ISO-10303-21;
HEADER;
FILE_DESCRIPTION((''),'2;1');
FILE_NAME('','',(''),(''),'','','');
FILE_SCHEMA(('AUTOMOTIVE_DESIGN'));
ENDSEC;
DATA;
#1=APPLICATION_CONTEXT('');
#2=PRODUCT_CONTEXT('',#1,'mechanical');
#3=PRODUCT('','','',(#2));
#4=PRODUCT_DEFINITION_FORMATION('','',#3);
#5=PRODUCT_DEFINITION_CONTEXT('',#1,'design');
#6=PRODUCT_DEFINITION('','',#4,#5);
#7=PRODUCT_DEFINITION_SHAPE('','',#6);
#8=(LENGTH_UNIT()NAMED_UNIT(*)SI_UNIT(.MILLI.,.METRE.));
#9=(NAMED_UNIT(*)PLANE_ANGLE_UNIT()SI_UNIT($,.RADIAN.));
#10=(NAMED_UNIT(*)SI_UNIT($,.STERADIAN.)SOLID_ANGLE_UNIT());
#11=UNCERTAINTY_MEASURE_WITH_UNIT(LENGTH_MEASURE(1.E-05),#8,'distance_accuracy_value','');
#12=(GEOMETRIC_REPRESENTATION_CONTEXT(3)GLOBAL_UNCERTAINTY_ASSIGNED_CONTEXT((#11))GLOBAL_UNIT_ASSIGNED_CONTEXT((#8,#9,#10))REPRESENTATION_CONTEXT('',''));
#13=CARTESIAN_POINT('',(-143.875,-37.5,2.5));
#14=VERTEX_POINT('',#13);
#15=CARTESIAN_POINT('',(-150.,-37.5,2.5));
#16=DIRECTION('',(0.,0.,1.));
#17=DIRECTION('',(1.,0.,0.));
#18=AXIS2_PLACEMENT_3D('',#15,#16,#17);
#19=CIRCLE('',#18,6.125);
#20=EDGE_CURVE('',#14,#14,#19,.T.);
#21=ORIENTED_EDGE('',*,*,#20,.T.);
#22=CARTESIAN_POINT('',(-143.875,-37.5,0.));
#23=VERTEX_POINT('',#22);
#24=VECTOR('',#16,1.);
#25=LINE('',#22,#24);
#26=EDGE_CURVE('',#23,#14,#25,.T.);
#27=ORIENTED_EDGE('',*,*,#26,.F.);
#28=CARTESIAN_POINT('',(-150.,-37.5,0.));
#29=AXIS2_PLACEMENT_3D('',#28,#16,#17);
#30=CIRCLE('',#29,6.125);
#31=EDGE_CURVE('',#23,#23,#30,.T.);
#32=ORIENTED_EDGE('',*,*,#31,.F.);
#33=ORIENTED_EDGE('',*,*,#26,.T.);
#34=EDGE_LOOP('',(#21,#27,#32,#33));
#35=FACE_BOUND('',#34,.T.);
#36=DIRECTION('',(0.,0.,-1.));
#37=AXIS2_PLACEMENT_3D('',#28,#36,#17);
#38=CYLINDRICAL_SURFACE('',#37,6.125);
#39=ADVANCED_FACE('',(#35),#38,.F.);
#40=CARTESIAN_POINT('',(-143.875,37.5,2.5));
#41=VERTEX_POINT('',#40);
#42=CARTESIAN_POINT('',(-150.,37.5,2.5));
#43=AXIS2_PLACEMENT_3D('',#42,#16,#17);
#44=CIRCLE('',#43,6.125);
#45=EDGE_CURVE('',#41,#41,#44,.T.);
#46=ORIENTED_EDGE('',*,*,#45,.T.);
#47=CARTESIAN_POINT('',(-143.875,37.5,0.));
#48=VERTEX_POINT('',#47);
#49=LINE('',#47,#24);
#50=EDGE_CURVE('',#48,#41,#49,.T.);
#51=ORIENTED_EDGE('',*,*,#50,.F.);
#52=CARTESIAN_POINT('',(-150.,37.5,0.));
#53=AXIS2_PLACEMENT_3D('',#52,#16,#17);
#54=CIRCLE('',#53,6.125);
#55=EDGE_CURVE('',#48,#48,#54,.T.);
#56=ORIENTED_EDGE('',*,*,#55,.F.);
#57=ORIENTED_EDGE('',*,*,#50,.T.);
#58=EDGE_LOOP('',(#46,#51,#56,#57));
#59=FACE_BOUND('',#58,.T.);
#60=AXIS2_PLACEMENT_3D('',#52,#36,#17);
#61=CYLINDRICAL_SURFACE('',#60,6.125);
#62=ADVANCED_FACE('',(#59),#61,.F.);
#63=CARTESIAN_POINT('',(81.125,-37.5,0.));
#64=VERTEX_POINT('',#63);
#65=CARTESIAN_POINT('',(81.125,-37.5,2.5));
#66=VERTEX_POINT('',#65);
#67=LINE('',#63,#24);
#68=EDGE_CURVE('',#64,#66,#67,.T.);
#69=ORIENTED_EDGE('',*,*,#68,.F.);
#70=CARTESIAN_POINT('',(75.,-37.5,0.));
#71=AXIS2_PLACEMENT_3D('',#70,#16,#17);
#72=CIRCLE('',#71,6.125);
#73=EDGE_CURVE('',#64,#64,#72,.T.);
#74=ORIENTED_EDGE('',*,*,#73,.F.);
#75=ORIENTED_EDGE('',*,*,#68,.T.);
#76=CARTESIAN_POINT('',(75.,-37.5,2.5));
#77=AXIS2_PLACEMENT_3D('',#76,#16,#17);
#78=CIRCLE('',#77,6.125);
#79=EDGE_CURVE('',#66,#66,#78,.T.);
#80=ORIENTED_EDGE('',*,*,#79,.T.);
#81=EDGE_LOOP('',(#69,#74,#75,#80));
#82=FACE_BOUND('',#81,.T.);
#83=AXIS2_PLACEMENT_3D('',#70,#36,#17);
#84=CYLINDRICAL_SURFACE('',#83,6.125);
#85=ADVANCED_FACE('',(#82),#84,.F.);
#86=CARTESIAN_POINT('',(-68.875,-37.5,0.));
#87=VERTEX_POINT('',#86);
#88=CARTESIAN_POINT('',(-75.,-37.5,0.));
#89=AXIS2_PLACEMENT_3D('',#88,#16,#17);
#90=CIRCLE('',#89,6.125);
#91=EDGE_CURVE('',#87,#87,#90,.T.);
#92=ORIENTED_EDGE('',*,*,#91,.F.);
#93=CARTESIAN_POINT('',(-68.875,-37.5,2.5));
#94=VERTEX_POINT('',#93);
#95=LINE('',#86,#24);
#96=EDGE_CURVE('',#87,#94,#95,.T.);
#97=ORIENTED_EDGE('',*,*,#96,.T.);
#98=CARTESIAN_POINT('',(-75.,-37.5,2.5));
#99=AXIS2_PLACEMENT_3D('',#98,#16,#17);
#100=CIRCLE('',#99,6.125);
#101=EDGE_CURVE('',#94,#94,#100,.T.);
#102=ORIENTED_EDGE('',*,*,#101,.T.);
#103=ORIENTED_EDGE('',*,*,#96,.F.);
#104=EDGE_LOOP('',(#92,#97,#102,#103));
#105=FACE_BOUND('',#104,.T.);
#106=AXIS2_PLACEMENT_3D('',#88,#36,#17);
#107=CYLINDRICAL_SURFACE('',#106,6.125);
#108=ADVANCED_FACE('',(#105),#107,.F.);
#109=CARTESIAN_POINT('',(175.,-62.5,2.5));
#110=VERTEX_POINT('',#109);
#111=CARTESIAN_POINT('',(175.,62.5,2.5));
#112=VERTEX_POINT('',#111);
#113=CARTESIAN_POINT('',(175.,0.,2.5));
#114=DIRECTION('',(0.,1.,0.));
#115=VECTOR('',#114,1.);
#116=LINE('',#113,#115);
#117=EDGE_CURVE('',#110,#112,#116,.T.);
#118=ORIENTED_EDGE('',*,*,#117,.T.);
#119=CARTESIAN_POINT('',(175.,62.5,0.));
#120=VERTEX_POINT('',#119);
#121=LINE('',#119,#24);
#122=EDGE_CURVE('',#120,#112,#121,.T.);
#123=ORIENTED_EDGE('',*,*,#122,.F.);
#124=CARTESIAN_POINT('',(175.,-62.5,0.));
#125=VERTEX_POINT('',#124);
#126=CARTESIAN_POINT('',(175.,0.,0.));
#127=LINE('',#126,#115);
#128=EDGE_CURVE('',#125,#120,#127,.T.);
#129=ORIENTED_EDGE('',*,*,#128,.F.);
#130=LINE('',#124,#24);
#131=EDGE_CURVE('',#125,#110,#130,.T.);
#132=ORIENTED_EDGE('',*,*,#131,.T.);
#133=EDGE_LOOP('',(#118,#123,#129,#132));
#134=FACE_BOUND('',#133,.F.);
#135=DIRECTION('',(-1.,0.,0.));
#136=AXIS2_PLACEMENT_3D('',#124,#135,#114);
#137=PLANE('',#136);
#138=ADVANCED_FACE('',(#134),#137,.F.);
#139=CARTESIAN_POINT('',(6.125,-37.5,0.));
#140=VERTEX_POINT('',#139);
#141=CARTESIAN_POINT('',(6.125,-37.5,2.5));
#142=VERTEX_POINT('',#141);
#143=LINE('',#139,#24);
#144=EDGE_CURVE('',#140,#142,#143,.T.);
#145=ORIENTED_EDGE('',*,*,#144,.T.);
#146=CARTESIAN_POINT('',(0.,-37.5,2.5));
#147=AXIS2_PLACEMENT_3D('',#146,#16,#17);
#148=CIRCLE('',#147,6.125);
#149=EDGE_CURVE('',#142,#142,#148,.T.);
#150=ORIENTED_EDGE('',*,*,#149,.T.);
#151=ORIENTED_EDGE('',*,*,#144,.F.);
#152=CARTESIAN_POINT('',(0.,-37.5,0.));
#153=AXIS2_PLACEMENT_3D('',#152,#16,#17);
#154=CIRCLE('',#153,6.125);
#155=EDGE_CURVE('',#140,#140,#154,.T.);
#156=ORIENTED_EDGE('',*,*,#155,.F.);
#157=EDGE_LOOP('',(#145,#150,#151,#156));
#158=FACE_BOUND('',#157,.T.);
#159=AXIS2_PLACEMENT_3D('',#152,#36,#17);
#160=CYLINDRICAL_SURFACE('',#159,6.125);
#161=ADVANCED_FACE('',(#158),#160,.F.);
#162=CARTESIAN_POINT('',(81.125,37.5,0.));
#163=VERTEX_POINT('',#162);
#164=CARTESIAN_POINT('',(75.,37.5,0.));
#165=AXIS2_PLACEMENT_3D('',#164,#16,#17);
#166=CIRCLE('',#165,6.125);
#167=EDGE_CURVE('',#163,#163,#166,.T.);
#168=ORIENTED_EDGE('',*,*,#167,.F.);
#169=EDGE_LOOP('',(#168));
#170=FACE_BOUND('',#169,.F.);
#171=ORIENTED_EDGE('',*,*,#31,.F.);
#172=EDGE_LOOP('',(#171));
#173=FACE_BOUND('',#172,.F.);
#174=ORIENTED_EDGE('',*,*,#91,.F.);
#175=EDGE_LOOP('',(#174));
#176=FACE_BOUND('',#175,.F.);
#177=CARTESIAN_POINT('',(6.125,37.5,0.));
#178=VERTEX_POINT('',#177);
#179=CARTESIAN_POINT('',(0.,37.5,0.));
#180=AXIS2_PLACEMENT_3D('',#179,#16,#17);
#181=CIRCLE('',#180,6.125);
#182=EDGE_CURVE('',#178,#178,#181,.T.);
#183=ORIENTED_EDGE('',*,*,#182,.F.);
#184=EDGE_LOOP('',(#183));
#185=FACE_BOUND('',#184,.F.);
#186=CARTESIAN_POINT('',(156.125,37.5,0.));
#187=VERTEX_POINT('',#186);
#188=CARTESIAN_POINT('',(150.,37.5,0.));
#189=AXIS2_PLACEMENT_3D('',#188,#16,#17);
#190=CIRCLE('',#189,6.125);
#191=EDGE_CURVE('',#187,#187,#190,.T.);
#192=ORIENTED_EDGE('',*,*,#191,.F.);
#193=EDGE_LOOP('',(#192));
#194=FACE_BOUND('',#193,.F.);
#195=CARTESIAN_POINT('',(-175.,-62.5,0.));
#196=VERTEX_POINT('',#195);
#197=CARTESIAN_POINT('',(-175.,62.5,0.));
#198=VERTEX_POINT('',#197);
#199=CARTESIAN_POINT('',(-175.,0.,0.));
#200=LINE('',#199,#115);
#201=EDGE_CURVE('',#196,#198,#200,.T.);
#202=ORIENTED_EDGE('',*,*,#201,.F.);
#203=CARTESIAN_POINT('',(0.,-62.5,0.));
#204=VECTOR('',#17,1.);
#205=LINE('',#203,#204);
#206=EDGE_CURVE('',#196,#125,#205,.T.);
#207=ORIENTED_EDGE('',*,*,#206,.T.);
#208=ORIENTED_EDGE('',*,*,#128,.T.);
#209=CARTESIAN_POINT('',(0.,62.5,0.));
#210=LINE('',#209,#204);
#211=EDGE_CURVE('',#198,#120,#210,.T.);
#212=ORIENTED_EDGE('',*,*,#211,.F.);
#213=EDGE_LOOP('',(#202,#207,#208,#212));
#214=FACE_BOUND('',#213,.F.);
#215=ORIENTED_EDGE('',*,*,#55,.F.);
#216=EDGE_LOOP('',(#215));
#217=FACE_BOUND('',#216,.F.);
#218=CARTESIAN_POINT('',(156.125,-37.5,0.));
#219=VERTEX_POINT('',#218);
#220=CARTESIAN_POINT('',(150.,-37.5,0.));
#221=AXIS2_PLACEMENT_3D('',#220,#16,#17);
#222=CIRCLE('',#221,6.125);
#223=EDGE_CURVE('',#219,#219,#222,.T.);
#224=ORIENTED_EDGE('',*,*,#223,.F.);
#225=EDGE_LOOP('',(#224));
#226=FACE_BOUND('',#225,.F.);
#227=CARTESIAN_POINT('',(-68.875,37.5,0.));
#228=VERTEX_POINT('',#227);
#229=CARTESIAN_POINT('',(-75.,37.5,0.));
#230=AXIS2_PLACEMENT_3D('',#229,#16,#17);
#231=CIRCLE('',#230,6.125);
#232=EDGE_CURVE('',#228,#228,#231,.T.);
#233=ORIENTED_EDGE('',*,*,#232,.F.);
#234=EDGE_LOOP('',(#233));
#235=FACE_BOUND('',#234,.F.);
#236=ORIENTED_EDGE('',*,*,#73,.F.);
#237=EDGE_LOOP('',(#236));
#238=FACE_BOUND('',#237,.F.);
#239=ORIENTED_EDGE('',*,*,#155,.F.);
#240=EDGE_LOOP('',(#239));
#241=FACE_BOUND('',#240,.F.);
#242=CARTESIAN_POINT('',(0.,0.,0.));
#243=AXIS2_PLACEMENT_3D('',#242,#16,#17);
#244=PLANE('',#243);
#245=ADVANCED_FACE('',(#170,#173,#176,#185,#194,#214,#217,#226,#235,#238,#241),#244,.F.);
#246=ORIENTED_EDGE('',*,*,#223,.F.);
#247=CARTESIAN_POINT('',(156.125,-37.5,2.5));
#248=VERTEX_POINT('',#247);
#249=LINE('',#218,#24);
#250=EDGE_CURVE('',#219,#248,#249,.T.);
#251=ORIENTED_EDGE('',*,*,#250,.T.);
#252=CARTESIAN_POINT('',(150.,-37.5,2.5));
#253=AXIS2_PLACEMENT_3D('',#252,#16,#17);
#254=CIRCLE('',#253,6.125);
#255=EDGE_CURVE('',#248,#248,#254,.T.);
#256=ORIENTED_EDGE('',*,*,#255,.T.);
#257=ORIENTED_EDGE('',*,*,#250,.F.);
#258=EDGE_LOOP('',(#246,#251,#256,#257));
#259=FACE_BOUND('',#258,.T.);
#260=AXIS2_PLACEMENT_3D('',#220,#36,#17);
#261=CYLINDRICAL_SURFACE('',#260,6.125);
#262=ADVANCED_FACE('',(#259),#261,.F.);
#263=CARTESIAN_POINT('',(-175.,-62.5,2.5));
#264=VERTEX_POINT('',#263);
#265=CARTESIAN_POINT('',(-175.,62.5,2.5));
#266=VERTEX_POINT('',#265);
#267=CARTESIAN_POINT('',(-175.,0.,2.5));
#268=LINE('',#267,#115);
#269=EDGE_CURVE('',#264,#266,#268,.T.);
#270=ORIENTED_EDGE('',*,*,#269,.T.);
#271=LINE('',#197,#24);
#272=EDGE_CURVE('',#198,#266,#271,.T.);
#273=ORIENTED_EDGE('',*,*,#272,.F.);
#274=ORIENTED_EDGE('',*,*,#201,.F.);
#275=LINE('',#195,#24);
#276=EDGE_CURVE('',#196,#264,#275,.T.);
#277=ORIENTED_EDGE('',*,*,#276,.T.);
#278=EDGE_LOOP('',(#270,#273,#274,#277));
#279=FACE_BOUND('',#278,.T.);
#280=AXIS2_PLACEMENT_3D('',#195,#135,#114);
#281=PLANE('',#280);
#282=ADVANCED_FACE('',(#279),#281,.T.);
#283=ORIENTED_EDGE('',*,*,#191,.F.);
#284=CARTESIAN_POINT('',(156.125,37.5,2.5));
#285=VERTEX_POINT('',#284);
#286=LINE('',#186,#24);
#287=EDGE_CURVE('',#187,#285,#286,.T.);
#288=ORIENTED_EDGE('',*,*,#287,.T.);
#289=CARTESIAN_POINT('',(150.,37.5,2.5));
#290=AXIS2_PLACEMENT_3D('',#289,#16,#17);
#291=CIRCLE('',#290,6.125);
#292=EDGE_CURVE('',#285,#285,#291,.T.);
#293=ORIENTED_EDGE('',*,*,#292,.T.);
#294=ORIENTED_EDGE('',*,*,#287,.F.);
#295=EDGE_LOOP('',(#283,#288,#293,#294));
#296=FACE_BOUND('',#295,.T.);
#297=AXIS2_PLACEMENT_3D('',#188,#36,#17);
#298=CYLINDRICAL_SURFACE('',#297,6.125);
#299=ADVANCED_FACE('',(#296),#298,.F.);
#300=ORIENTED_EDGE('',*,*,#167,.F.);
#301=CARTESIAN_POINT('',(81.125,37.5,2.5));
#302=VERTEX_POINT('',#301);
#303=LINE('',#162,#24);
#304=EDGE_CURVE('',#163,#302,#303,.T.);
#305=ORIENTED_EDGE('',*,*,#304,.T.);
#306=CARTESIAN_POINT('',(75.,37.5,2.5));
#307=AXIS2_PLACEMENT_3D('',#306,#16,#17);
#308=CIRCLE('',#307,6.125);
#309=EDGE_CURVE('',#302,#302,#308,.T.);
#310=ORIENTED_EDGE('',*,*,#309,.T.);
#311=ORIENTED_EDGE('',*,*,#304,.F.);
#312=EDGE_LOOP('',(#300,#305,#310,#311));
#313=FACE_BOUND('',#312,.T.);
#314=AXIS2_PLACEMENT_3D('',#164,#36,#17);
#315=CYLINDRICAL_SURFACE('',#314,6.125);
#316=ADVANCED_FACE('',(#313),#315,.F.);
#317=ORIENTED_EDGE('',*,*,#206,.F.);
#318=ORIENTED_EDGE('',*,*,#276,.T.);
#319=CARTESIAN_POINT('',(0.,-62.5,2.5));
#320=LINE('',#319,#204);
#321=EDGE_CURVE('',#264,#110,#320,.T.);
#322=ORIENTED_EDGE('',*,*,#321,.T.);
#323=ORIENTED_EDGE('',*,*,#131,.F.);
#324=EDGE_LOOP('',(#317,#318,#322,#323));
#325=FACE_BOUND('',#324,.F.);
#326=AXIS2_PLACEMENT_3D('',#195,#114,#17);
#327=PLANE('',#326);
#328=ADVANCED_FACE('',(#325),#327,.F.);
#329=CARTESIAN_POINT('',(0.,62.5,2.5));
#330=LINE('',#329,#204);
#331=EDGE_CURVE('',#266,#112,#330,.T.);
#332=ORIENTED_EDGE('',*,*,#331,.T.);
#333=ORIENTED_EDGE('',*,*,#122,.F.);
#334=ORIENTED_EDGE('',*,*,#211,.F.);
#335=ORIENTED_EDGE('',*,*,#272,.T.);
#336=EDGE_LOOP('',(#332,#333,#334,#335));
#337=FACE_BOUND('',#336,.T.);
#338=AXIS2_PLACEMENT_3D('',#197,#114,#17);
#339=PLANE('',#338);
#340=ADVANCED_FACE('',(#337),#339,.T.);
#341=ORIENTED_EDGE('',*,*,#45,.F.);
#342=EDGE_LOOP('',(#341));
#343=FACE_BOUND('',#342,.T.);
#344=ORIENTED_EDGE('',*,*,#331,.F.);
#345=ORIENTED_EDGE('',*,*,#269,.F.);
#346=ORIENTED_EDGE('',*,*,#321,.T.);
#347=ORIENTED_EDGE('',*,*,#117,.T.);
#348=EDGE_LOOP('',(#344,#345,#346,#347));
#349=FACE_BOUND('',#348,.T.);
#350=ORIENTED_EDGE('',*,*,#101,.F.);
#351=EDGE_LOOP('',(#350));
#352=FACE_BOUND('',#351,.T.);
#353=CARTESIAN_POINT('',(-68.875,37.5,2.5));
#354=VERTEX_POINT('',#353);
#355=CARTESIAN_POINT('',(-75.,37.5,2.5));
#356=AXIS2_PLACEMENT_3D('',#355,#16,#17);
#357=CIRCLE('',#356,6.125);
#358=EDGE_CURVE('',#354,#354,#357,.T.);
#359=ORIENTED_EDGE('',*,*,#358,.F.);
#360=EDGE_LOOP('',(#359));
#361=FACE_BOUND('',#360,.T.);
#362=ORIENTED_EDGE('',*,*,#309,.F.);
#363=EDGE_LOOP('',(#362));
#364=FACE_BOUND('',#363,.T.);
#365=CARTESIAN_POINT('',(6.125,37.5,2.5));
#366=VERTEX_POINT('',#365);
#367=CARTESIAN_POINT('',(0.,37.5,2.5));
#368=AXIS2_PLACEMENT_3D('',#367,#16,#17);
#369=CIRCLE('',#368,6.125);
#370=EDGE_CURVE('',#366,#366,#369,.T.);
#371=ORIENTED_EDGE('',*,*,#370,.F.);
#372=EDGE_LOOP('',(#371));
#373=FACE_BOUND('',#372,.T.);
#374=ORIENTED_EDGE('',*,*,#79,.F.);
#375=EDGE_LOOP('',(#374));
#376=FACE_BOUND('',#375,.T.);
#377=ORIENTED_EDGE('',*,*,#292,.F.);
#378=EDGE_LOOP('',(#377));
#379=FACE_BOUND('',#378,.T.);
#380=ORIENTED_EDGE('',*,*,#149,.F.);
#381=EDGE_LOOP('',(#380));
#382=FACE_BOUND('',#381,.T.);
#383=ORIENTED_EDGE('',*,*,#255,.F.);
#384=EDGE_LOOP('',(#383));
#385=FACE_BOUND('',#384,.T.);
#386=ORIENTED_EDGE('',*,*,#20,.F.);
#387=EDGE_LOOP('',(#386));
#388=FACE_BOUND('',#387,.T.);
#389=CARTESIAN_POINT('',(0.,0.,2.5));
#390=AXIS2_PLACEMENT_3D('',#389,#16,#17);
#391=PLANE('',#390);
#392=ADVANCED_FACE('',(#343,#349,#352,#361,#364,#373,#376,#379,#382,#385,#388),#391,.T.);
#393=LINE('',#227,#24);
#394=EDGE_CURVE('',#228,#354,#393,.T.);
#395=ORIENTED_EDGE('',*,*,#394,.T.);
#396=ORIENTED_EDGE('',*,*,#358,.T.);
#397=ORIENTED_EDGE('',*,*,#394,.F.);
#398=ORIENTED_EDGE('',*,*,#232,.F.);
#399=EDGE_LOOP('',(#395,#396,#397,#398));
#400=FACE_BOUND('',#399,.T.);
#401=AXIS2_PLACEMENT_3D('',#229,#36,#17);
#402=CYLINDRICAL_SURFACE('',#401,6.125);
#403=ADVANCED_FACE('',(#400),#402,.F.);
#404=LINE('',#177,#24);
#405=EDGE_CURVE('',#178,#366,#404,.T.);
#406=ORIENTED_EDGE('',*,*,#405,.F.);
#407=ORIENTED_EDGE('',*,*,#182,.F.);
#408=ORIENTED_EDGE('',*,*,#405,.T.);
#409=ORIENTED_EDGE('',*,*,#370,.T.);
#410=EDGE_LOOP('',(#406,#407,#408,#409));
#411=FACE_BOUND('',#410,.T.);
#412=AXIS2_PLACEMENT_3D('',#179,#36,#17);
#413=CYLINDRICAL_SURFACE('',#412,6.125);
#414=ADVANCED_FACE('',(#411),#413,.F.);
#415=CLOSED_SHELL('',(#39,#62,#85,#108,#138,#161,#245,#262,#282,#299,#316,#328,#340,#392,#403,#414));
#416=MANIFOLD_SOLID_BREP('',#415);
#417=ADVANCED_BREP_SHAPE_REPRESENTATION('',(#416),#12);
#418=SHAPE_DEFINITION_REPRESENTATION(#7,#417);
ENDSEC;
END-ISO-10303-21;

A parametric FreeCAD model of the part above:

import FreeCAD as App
import Part
import Sketcher
Q = App.Units.Quantity


def add_polygon(sketch, points):
    """Adds a closed chain of lines whose ends are joined by coincident constraints."""
    first, n = sketch.GeometryCount, len(points)
    for a, b in zip(points, points[1:] + points[:1]):
        sketch.addGeometry(Part.LineSegment(App.Vector(*a, 0), App.Vector(*b, 0)), False)
    for i in range(n):
        sketch.addConstraint(Sketcher.Constraint("Coincident", first + i, 2, first + (i + 1) % n, 1))

doc = App.newDocument("Part")
body = doc.addObject("PartDesign::Body", "Body")

# Sketch on XY plane
sketch1 = body.newObject("Sketcher::SketchObject", "Sketch")
sketch1.AttachmentSupport = (doc.getObject("XY_Plane"), [""])
sketch1.MapMode = "FlatFace"
add_polygon(sketch1, [(-175, 62), (-175, -62), (175, -62), (175, 62)])  # lines 0-3
sketch1.addGeometry(Part.Circle(App.Vector(-150, -38, 0), App.Vector(0, 0, 1), 6), False)  # 4
sketch1.addGeometry(Part.Circle(App.Vector(-75, -38, 0), App.Vector(0, 0, 1), 6), False)  # 5
sketch1.addGeometry(Part.Circle(App.Vector(0, -38, 0), App.Vector(0, 0, 1), 6), False)  # 6
sketch1.addGeometry(Part.Circle(App.Vector(75, -38, 0), App.Vector(0, 0, 1), 6), False)  # 7
sketch1.addGeometry(Part.Circle(App.Vector(150, -38, 0), App.Vector(0, 0, 1), 6), False)  # 8
sketch1.addGeometry(Part.Circle(App.Vector(-150, 38, 0), App.Vector(0, 0, 1), 6), False)  # 9
sketch1.addGeometry(Part.Circle(App.Vector(-75, 38, 0), App.Vector(0, 0, 1), 6), False)  # 10
sketch1.addGeometry(Part.Circle(App.Vector(0, 38, 0), App.Vector(0, 0, 1), 6), False)  # 11
sketch1.addGeometry(Part.Circle(App.Vector(75, 38, 0), App.Vector(0, 0, 1), 6), False)  # 12
sketch1.addGeometry(Part.Circle(App.Vector(150, 38, 0), App.Vector(0, 0, 1), 6), False)  # 13
sketch1.addConstraint([
    Sketcher.Constraint("Vertical", 0),
    Sketcher.Constraint("Horizontal", 1),
    Sketcher.Constraint("Vertical", 2),
    Sketcher.Constraint("Horizontal", 3),
    Sketcher.Constraint("Equal", 4, 5),
    Sketcher.Constraint("Equal", 5, 6),
    Sketcher.Constraint("Equal", 6, 7),
    Sketcher.Constraint("Equal", 7, 8),
    Sketcher.Constraint("Equal", 8, 9),
    Sketcher.Constraint("Equal", 9, 10),
    Sketcher.Constraint("Equal", 10, 11),
    Sketcher.Constraint("Equal", 11, 12),
    Sketcher.Constraint("Equal", 12, 13),
    Sketcher.Constraint("Symmetric", 8, 3, 9, 3, -1, 1),
    Sketcher.Constraint("Symmetric", 7, 3, 10, 3, -1, 1),
    Sketcher.Constraint("Symmetric", 6, 3, 11, 3, -1, 1),
    Sketcher.Constraint("Symmetric", 5, 3, 12, 3, -1, 1),
    Sketcher.Constraint("Symmetric", 4, 3, 13, 3, -1, 1),
    Sketcher.Constraint("Symmetric", 0, 2, 2, 2, -1, 1),
    Sketcher.Constraint("Symmetric", 5, 3, 7, 3, -2),
    Sketcher.Constraint("Symmetric", 4, 3, 8, 3, -2),
    Sketcher.Constraint("PointOnObject", 6, 3, -2),
    Sketcher.Constraint("Horizontal", 4, 3, 5, 3),
    Sketcher.Constraint("Horizontal", 5, 3, 6, 3),
    Sketcher.Constraint("Diameter", 4, Q("12.25 mm")),
    Sketcher.Constraint("DistanceX", 1, 1, 1, 2, Q("350 mm")),
    Sketcher.Constraint("DistanceY", 0, 2, 0, 1, Q("125 mm")),
    Sketcher.Constraint("DistanceX", 4, 3, -1, 1, Q("150 mm")),
    Sketcher.Constraint("DistanceX", 5, 3, -1, 1, Q("75 mm")),
    Sketcher.Constraint("DistanceY", 4, 3, 9, 3, Q("75 mm")),
])
pad1 = body.newObject("PartDesign::Pad", "Pad")
pad1.Profile = sketch1
pad1.Length = 2.5

doc.recompute()
